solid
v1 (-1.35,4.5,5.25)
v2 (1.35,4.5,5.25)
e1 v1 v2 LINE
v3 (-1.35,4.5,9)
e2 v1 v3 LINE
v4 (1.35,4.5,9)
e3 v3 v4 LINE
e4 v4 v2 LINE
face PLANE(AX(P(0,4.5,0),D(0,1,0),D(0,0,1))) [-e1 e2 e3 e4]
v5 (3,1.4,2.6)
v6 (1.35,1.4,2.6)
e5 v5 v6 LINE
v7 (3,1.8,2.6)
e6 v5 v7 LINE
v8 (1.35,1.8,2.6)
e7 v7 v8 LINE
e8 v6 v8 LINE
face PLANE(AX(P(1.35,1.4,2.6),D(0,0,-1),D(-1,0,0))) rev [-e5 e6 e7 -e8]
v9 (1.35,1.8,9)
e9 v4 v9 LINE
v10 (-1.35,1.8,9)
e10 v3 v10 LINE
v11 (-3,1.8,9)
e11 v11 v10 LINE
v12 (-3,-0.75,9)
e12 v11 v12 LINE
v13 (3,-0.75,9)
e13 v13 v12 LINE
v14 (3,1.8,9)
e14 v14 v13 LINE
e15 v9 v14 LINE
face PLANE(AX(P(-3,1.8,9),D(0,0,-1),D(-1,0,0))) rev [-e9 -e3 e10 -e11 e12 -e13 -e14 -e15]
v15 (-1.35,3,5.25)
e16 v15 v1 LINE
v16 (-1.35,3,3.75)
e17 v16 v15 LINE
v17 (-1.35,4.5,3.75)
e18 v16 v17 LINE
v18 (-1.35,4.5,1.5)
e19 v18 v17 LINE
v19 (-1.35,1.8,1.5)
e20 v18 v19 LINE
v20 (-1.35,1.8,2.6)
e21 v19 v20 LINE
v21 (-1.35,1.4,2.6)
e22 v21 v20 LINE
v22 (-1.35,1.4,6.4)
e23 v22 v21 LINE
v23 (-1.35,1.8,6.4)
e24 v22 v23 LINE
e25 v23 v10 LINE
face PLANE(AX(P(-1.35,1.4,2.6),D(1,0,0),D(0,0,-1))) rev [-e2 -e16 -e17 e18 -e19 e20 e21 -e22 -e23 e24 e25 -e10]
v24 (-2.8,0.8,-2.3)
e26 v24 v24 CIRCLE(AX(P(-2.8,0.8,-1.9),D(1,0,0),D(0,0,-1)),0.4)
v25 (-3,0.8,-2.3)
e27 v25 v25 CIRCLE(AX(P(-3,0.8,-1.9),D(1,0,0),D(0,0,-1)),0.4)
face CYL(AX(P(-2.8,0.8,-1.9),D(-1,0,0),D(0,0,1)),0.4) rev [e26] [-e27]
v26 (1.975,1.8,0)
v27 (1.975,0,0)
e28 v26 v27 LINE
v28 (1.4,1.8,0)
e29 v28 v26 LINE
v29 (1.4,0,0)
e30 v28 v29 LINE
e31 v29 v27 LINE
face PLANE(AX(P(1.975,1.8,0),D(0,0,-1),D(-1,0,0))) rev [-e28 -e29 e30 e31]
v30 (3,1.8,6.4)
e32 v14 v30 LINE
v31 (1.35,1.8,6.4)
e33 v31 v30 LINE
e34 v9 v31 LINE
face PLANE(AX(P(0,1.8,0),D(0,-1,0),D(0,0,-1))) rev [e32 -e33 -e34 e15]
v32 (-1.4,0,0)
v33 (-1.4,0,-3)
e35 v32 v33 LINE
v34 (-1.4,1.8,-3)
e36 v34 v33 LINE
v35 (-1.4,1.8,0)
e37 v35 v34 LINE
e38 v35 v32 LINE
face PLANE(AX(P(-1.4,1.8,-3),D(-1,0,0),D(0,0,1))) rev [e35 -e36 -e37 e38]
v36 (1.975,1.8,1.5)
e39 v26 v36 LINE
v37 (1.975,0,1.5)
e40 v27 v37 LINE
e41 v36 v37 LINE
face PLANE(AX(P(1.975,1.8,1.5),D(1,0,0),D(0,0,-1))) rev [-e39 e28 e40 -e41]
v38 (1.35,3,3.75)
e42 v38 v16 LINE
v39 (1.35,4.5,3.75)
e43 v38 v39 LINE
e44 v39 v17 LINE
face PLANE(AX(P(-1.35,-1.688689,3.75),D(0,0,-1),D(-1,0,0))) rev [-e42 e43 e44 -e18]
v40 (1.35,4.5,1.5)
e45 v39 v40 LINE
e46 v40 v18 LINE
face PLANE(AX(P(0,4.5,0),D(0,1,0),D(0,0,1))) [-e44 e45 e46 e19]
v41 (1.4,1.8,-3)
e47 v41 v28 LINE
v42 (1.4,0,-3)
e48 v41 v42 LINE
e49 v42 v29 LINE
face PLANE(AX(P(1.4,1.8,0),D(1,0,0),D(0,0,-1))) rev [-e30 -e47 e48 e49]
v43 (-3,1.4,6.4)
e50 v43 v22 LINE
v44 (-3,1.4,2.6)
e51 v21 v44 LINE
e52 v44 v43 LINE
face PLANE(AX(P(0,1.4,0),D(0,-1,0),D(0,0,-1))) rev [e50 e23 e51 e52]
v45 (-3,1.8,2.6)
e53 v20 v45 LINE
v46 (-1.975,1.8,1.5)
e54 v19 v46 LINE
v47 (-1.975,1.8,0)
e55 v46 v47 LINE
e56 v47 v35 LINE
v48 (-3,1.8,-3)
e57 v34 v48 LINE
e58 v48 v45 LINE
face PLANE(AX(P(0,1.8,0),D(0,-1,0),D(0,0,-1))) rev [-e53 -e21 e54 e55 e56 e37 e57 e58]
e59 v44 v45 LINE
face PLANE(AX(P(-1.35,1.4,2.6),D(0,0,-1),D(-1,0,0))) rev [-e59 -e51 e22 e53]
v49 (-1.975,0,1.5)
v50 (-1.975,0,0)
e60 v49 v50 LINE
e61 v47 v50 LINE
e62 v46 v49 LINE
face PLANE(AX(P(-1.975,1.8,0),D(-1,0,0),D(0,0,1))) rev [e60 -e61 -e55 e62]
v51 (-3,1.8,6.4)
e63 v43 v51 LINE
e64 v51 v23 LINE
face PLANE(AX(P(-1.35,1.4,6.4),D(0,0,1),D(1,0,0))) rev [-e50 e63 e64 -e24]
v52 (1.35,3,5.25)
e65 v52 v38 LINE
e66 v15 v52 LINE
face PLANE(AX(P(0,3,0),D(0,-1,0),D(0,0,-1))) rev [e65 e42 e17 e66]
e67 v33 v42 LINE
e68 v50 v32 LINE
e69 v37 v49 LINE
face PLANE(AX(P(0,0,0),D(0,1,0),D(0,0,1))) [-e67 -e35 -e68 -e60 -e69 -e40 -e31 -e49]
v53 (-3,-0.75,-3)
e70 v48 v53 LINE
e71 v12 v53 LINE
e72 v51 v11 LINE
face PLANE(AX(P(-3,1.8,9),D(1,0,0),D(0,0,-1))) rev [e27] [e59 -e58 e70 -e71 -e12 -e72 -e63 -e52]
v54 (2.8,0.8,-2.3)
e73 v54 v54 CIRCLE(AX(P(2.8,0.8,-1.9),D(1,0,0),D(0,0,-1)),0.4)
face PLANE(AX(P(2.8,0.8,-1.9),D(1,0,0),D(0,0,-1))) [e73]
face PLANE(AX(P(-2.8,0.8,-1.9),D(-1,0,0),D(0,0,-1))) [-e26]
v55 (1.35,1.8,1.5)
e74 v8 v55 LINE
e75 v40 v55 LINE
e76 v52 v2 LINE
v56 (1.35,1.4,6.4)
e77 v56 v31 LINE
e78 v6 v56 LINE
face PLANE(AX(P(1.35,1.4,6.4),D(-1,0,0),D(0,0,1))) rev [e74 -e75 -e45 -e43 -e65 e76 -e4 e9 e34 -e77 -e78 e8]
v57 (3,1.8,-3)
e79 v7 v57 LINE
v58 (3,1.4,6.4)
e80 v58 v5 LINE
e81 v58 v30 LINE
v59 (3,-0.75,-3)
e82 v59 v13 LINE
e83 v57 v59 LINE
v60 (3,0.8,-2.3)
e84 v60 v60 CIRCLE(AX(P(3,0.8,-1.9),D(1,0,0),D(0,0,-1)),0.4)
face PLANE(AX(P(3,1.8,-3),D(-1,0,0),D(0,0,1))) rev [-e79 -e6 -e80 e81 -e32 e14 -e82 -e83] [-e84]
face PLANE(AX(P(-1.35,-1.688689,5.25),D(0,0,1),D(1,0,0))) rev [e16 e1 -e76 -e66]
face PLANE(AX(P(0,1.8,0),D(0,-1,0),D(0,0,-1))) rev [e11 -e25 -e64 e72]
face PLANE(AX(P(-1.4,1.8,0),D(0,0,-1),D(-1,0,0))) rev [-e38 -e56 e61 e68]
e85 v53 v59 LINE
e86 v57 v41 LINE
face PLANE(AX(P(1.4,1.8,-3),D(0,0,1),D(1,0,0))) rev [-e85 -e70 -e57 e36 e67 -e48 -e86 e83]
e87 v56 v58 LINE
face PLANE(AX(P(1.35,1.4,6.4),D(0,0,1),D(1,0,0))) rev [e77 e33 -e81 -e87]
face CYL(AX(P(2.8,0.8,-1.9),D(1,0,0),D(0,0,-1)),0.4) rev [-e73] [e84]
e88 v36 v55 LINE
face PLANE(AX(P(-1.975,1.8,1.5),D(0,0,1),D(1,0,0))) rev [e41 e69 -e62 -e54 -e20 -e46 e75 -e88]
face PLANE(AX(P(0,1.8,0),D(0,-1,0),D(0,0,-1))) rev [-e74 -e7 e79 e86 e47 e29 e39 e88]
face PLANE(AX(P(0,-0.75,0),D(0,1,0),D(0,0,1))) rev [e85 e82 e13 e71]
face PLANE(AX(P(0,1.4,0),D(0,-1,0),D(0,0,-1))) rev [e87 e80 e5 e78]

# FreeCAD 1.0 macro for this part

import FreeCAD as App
import Part
import Sketcher
Q = App.Units.Quantity

doc = App.newDocument("Part")
body = doc.addObject("PartDesign::Body", "Body")

# Sketch on XZ plane
sketch1 = body.newObject("Sketcher::SketchObject", "Sketch")
sketch1.AttachmentSupport = (doc.getObject("XZ_Plane"), [""])
sketch1.MapMode = "FlatFace"
sketch1.addGeometry([
    Part.LineSegment(App.Vector(-1.4, 0, 0), App.Vector(-1.4, -3, 0)),  # 0
    Part.LineSegment(App.Vector(-1.4, -3, 0), App.Vector(-3, -3, 0)),  # 1
    Part.LineSegment(App.Vector(-3, -3, 0), App.Vector(-3, 9, 0)),  # 2
    Part.LineSegment(App.Vector(-3, 9, 0), App.Vector(3, 9, 0)),  # 3
    Part.LineSegment(App.Vector(3, 9, 0), App.Vector(3, -3, 0)),  # 4
    Part.LineSegment(App.Vector(3, -3, 0), App.Vector(1.4, -3, 0)),  # 5
    Part.LineSegment(App.Vector(1.4, -3, 0), App.Vector(1.4, 0, 0)),  # 6
    Part.LineSegment(App.Vector(1.4, 0, 0), App.Vector(2, 0, 0)),  # 7
    Part.LineSegment(App.Vector(2, 0, 0), App.Vector(2, 1.5, 0)),  # 8
    Part.LineSegment(App.Vector(2, 1.5, 0), App.Vector(-2, 1.5, 0)),  # 9
    Part.LineSegment(App.Vector(-2, 1.5, 0), App.Vector(-2, 0, 0)),  # 10
    Part.LineSegment(App.Vector(-2, 0, 0), App.Vector(-1.4, 0, 0)),  # 11
], False)
sketch1.addConstraint([
    Sketcher.Constraint("Coincident", 0, 2, 1, 1),
    Sketcher.Constraint("Coincident", 1, 2, 2, 1),
    Sketcher.Constraint("Coincident", 2, 2, 3, 1),
    Sketcher.Constraint("Coincident", 3, 2, 4, 1),
    Sketcher.Constraint("Coincident", 4, 2, 5, 1),
    Sketcher.Constraint("Coincident", 5, 2, 6, 1),
    Sketcher.Constraint("Coincident", 6, 2, 7, 1),
    Sketcher.Constraint("Coincident", 7, 2, 8, 1),
    Sketcher.Constraint("Coincident", 8, 2, 9, 1),
    Sketcher.Constraint("Coincident", 9, 2, 10, 1),
    Sketcher.Constraint("Coincident", 10, 2, 11, 1),
    Sketcher.Constraint("Coincident", 11, 2, 0, 1),
    Sketcher.Constraint("Vertical", 0),
    Sketcher.Constraint("Horizontal", 1),
    Sketcher.Constraint("Vertical", 2),
    Sketcher.Constraint("Horizontal", 3),
    Sketcher.Constraint("Vertical", 4),
    Sketcher.Constraint("Horizontal", 5),
    Sketcher.Constraint("Vertical", 6),
    Sketcher.Constraint("Horizontal", 7),
    Sketcher.Constraint("Vertical", 8),
    Sketcher.Constraint("Horizontal", 9),
    Sketcher.Constraint("Vertical", 10),
    Sketcher.Constraint("Horizontal", 11),
    Sketcher.Constraint("Symmetric", 7, 2, 10, 2, -1, 1),
    Sketcher.Constraint("Symmetric", 1, 2, 4, 2, -2),
    Sketcher.Constraint("Symmetric", 6, 2, 11, 2, -2),
    Sketcher.Constraint("DistanceX", 3, 1, 3, 2, Q("6 mm")),
    Sketcher.Constraint("DistanceY", 0, 2, 0, 1, Q("3 mm")),
    Sketcher.Constraint("DistanceY", 2, 1, 2, 2, Q("12 mm")),
    Sketcher.Constraint("DistanceX", 1, 2, 1, 1, Q("1.6 mm")),
    Sketcher.Constraint("DistanceY", 8, 1, 8, 2, Q("1.5 mm")),
    Sketcher.Constraint("DistanceX", 9, 2, 9, 1, Q("3.95 mm")),
])
pad1 = body.newObject("PartDesign::Pad", "Pad")
pad1.Profile = sketch1
pad1.Length = 1.8
pad1.Reversed = True

# Sketch on XZ plane
sketch2 = body.newObject("Sketcher::SketchObject", "Sketch001")
sketch2.AttachmentSupport = (doc.getObject("XZ_Plane"), [""])
sketch2.MapMode = "FlatFace"
sketch2.addGeometry([
    Part.LineSegment(App.Vector(-3, 9, 0), App.Vector(-3, -3, 0)),
    Part.LineSegment(App.Vector(-3, -3, 0), App.Vector(3, -3, 0)),
    Part.LineSegment(App.Vector(3, -3, 0), App.Vector(3, 9, 0)),
    Part.LineSegment(App.Vector(3, 9, 0), App.Vector(-3, 9, 0)),
], False)
sketch2.addConstraint([
    Sketcher.Constraint("Coincident", 0, 2, 1, 1),
    Sketcher.Constraint("Coincident", 1, 2, 2, 1),
    Sketcher.Constraint("Coincident", 2, 2, 3, 1),
    Sketcher.Constraint("Coincident", 3, 2, 0, 1),
    Sketcher.Constraint("Vertical", 0),
    Sketcher.Constraint("Horizontal", 1),
    Sketcher.Constraint("Vertical", 2),
    Sketcher.Constraint("Horizontal", 3),
    Sketcher.Constraint("DistanceX", 1, 1, 1, 2, Q("6 mm")),
    Sketcher.Constraint("DistanceY", 0, 2, 0, 1, Q("12 mm")),
    Sketcher.Constraint("DistanceX", 0, 2, -1, 1, Q("3 mm")),
    Sketcher.Constraint("DistanceY", 0, 2, -1, 1, Q("3 mm")),
])
pad2 = body.newObject("PartDesign::Pad", "Pad001")
pad2.Profile = sketch2
pad2.Length = 0.75

# Sketch on XZ plane
sketch3 = body.newObject("Sketcher::SketchObject", "Sketch002")
sketch3.AttachmentSupport = (doc.getObject("XZ_Plane"), [""])
sketch3.MapMode = "FlatFace"
sketch3.AttachmentOffset = App.Placement(App.Vector(0, 0, -1.8), App.Rotation())
sketch3.addGeometry([
    Part.LineSegment(App.Vector(-3, 2.6, 0), App.Vector(-3, 6.4, 0)),  # 0
    Part.LineSegment(App.Vector(-3, 6.4, 0), App.Vector(-1.4, 6.4, 0)),  # 1
    Part.LineSegment(App.Vector(-1.4, 6.4, 0), App.Vector(-1.4, 2.6, 0)),  # 2
    Part.LineSegment(App.Vector(-1.4, 2.6, 0), App.Vector(-3, 2.6, 0)),  # 3
    Part.LineSegment(App.Vector(1.4, 2.6, 0), App.Vector(1.4, 6.4, 0)),  # 4
    Part.LineSegment(App.Vector(1.4, 6.4, 0), App.Vector(3, 6.4, 0)),  # 5
    Part.LineSegment(App.Vector(3, 6.4, 0), App.Vector(3, 2.6, 0)),  # 6
    Part.LineSegment(App.Vector(3, 2.6, 0), App.Vector(1.4, 2.6, 0)),  # 7
], False)
sketch3.addConstraint([
    Sketcher.Constraint("Coincident", 0, 2, 1, 1),
    Sketcher.Constraint("Coincident", 1, 2, 2, 1),
    Sketcher.Constraint("Coincident", 2, 2, 3, 1),
    Sketcher.Constraint("Coincident", 3, 2, 0, 1),
    Sketcher.Constraint("Coincident", 4, 2, 5, 1),
    Sketcher.Constraint("Coincident", 5, 2, 6, 1),
    Sketcher.Constraint("Coincident", 6, 2, 7, 1),
    Sketcher.Constraint("Coincident", 7, 2, 4, 1),
    Sketcher.Constraint("Vertical", 0),
    Sketcher.Constraint("Horizontal", 1),
    Sketcher.Constraint("Vertical", 2),
    Sketcher.Constraint("Horizontal", 3),
    Sketcher.Constraint("Vertical", 4),
    Sketcher.Constraint("Horizontal", 5),
    Sketcher.Constraint("Vertical", 6),
    Sketcher.Constraint("Horizontal", 7),
    Sketcher.Constraint("Symmetric", 1, 2, 4, 2, -2),
    Sketcher.Constraint("Symmetric", 3, 2, 6, 2, -2),
    Sketcher.Constraint("DistanceY", 0, 1, 0, 2, Q("3.8 mm")),
    Sketcher.Constraint("DistanceX", 0, 2, -1, 1, Q("3 mm")),
    Sketcher.Constraint("DistanceX", 1, 1, 1, 2, Q("1.65 mm")),
    Sketcher.Constraint("DistanceY", -1, 1, 0, 2, Q("6.4 mm")),
])
pocket1 = body.newObject("PartDesign::Pocket", "Pocket")
pocket1.Profile = sketch3
pocket1.Length = 0.4
pocket1.Reversed = True

# Sketch on YZ plane
sketch4 = body.newObject("Sketcher::SketchObject", "Sketch003")
sketch4.AttachmentSupport = (doc.getObject("YZ_Plane"), [""])
sketch4.MapMode = "FlatFace"
sketch4.AttachmentOffset = App.Placement(App.Vector(0, 0, 3), App.Rotation())
sketch4.addGeometry(Part.Circle(App.Vector(0.8, -1.9, 0), App.Vector(0, 0, 1), 0.4), False)
sketch4.addConstraint([
    Sketcher.Constraint("Diameter", 0, Q("0.8 mm")),
    Sketcher.Constraint("DistanceX", -1, 1, 0, 3, Q("0.8 mm")),
    Sketcher.Constraint("DistanceY", 0, 3, -1, 1, Q("1.9 mm")),
])
pocket2 = body.newObject("PartDesign::Pocket", "Pocket001")
pocket2.Profile = sketch4
pocket2.Length = 0.2
doc.recompute()

mirrored = body.newObject("PartDesign::Mirrored", "Mirrored")
mirrored.Originals = [pocket2]
mirrored.MirrorPlane = (doc.getObject("YZ_Plane"), [""])
body.Tip = mirrored

# Sketch on XZ plane
sketch5 = body.newObject("Sketcher::SketchObject", "Sketch004")
sketch5.AttachmentSupport = (doc.getObject("XZ_Plane"), [""])
sketch5.MapMode = "FlatFace"
sketch5.AttachmentOffset = App.Placement(App.Vector(0, 0, -1.8), App.Rotation())
sketch5.addGeometry([
    Part.LineSegment(App.Vector(-1.4, 9, 0), App.Vector(1.4, 9, 0)),
    Part.LineSegment(App.Vector(1.4, 9, 0), App.Vector(1.4, 1.5, 0)),
    Part.LineSegment(App.Vector(1.4, 1.5, 0), App.Vector(-1.4, 1.5, 0)),
    Part.LineSegment(App.Vector(-1.4, 1.5, 0), App.Vector(-1.4, 9, 0)),
], False)
sketch5.addConstraint([
    Sketcher.Constraint("Coincident", 0, 2, 1, 1),
    Sketcher.Constraint("Coincident", 1, 2, 2, 1),
    Sketcher.Constraint("Coincident", 2, 2, 3, 1),
    Sketcher.Constraint("Coincident", 3, 2, 0, 1),
    Sketcher.Constraint("Horizontal", 0),
    Sketcher.Constraint("Vertical", 1),
    Sketcher.Constraint("Horizontal", 2),
    Sketcher.Constraint("Vertical", 3),
    Sketcher.Constraint("DistanceX", 0, 1, 0, 2, Q("2.7 mm")),
    Sketcher.Constraint("DistanceY", 1, 2, 1, 1, Q("7.5 mm")),
    Sketcher.Constraint("DistanceY", -1, 1, 0, 2, Q("9 mm")),
    Sketcher.Constraint("DistanceX", -1, 1, 0, 2, Q("1.35 mm")),
])
pad3 = body.newObject("PartDesign::Pad", "Pad002")
pad3.Profile = sketch5
pad3.Length = 2.7
pad3.Reversed = True

# Sketch on XZ plane
sketch6 = body.newObject("Sketcher::SketchObject", "Sketch005")
sketch6.AttachmentSupport = (doc.getObject("XZ_Plane"), [""])
sketch6.MapMode = "FlatFace"
sketch6.AttachmentOffset = App.Placement(App.Vector(0, 0, -4.5), App.Rotation())
sketch6.addGeometry([
    Part.LineSegment(App.Vector(-1.4, 3.8, 0), App.Vector(-1.4, 5.2, 0)),
    Part.LineSegment(App.Vector(-1.4, 5.2, 0), App.Vector(1.4, 5.2, 0)),
    Part.LineSegment(App.Vector(1.4, 5.2, 0), App.Vector(1.4, 3.8, 0)),
    Part.LineSegment(App.Vector(1.4, 3.8, 0), App.Vector(-1.4, 3.8, 0)),
], False)
sketch6.addConstraint([
    Sketcher.Constraint("Coincident", 0, 2, 1, 1),
    Sketcher.Constraint("Coincident", 1, 2, 2, 1),
    Sketcher.Constraint("Coincident", 2, 2, 3, 1),
    Sketcher.Constraint("Coincident", 3, 2, 0, 1),
    Sketcher.Constraint("Vertical", 0),
    Sketcher.Constraint("Horizontal", 1),
    Sketcher.Constraint("Vertical", 2),
    Sketcher.Constraint("Horizontal", 3),
    Sketcher.Constraint("DistanceX", 1, 1, 1, 2, Q("2.7 mm")),
    Sketcher.Constraint("DistanceY", 0, 1, 0, 2, Q("1.5 mm")),
    Sketcher.Constraint("DistanceX", 0, 2, -1, 1, Q("1.35 mm")),
    Sketcher.Constraint("DistanceY", -1, 1, 0, 2, Q("5.25 mm")),
])
pocket3 = body.newObject("PartDesign::Pocket", "Pocket002")
pocket3.Profile = sketch6
pocket3.Length = 1.5
pocket3.Reversed = True

doc.recompute()
